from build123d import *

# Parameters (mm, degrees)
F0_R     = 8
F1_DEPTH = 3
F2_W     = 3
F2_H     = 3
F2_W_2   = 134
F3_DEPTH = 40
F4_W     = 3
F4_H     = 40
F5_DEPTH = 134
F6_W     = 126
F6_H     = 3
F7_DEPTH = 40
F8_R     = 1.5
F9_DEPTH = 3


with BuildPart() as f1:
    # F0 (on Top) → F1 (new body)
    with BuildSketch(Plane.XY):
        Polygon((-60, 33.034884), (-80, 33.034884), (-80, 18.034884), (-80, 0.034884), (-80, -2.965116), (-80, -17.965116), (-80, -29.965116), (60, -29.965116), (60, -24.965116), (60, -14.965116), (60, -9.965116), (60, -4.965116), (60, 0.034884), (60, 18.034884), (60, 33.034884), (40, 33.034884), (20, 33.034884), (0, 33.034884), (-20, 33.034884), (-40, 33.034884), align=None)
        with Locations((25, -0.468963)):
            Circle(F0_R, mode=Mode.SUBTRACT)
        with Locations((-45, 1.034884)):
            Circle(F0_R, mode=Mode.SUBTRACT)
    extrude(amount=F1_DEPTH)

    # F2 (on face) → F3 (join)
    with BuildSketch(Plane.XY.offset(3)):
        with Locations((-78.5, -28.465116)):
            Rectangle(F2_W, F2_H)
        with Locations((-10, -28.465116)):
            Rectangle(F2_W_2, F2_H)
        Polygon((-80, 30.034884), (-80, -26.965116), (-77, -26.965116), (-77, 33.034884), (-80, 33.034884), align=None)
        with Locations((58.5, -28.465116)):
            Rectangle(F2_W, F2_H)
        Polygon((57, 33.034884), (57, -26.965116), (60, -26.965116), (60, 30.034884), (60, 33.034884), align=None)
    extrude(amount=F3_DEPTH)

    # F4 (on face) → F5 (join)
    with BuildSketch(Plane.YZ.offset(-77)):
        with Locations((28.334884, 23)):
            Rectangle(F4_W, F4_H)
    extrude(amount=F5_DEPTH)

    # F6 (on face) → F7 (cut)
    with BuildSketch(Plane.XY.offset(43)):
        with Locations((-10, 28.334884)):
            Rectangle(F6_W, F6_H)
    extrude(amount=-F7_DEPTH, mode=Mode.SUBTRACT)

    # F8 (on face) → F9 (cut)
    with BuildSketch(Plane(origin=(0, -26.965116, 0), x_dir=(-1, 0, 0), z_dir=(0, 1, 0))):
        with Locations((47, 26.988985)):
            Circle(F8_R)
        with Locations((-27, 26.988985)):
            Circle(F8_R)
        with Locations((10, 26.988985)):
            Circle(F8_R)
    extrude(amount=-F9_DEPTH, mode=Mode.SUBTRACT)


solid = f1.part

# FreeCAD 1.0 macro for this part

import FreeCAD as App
import Part
import Sketcher

V = App.Vector
Q = App.Units.Quantity


def add_polygon(sketch, points):
    """Adds a closed chain of lines whose ends are joined by coincident constraints."""
    first, n = sketch.GeometryCount, len(points)
    for a, b in zip(points, points[1:] + points[:1]):
        sketch.addGeometry(Part.LineSegment(App.Vector(*a, 0), App.Vector(*b, 0)), False)
    for i in range(n):
        sketch.addConstraint(Sketcher.Constraint("Coincident", first + i, 2, first + (i + 1) % n, 1))

doc = App.newDocument("Part")
body = doc.addObject("PartDesign::Body", "Body")

sketch1 = body.newObject("Sketcher::SketchObject", "Sketch")
sketch1.AttachmentSupport = (doc.getObject("XY_Plane"), [""])
sketch1.MapMode = "FlatFace"
add_polygon(sketch1, [(-80, 33), (-80, -30), (60, -30), (60, 33)])
sketch1.addGeometry(Part.Circle(V(25, 0, 0), V(0, 0, 1), 8), False)
sketch1.addGeometry(Part.Circle(V(-45, 1, 0), V(0, 0, 1), 8), False)
sketch1.addConstraint([
    Sketcher.Constraint("Vertical", 0),
    Sketcher.Constraint("Horizontal", 1),
    Sketcher.Constraint("Vertical", 2),
    Sketcher.Constraint("Horizontal", 3),
    Sketcher.Constraint("Equal", 4, 5),
    Sketcher.Constraint("Diameter", 4, Q("16 mm")),
    Sketcher.Constraint("DistanceX", 1, 1, 1, 2, Q("140 mm")),
    Sketcher.Constraint("DistanceY", 0, 2, 0, 1, Q("63 mm")),
    Sketcher.Constraint("DistanceX", -1, 1, 4, 3, Q("25 mm")),
    Sketcher.Constraint("DistanceX", 5, 3, -1, 1, Q("45 mm")),
    Sketcher.Constraint("DistanceX", 0, 2, -1, 1, Q("80 mm")),
    Sketcher.Constraint("DistanceY", 0, 2, 5, 3, Q("31 mm")),
    Sketcher.Constraint("DistanceY", 4, 3, -1, 1, Q("0.468963 mm")),
    Sketcher.Constraint("DistanceY", -1, 1, 5, 3, Q("1.034884 mm")),
])
pad1 = body.newObject("PartDesign::Pad", "Pad")
pad1.Profile = sketch1
pad1.Length = 3

sketch2 = body.newObject("Sketcher::SketchObject", "Sketch001")
sketch2.AttachmentSupport = (doc.getObject("XY_Plane"), [""])
sketch2.MapMode = "FlatFace"
sketch2.AttachmentOffset = App.Placement(V(0, 0, 3), App.Rotation())
add_polygon(sketch2, [(-80, -30), (60, -30), (60, 33), (57, 33), (57, -27), (-77, -27), (-77, 33), (-80, 33)])
sketch2.addConstraint([
    Sketcher.Constraint("Horizontal", 0),
    Sketcher.Constraint("Vertical", 1),
    Sketcher.Constraint("Horizontal", 2),
    Sketcher.Constraint("Vertical", 3),
    Sketcher.Constraint("Horizontal", 4),
    Sketcher.Constraint("Vertical", 5),
    Sketcher.Constraint("Horizontal", 6),
    Sketcher.Constraint("Vertical", 7),
    Sketcher.Constraint("Horizontal", 2, 2, 5, 2),
    Sketcher.Constraint("Equal", 2, 6),
    Sketcher.Constraint("DistanceX", 0, 1, 0, 2, Q("140 mm")),
    Sketcher.Constraint("DistanceX", 2, 2, 2, 1, Q("3 mm")),
    Sketcher.Constraint("DistanceY", 1, 1, 1, 2, Q("63 mm")),
    Sketcher.Constraint("DistanceY", 3, 2, 3, 1, Q("60 mm")),
    Sketcher.Constraint("DistanceX", -1, 1, 0, 2, Q("60 mm")),
    Sketcher.Constraint("DistanceY", 0, 2, -1, 1, Q("29.965116 mm")),
])
pad2 = body.newObject("PartDesign::Pad", "Pad001")
pad2.Profile = sketch2
pad2.Length = 40

sketch3 = body.newObject("Sketcher::SketchObject", "Sketch002")
sketch3.AttachmentSupport = (doc.getObject("YZ_Plane"), [""])
sketch3.MapMode = "FlatFace"
sketch3.AttachmentOffset = App.Placement(V(0, 0, -77), App.Rotation())
add_polygon(sketch3, [(26.8, 43), (26.8, 3), (29.8, 3), (29.8, 43)])
sketch3.addConstraint([
    Sketcher.Constraint("Vertical", 0),
    Sketcher.Constraint("Horizontal", 1),
    Sketcher.Constraint("Vertical", 2),
    Sketcher.Constraint("Horizontal", 3),
    Sketcher.Constraint("DistanceX", 1, 1, 1, 2, Q("3 mm")),
    Sketcher.Constraint("DistanceY", 0, 2, 0, 1, Q("40 mm")),
    Sketcher.Constraint("DistanceY", -1, 1, 0, 2, Q("3 mm")),
    Sketcher.Constraint("DistanceX", -1, 1, 0, 2, Q("26.834884 mm")),
])
pad3 = body.newObject("PartDesign::Pad", "Pad002")
pad3.Profile = sketch3
pad3.Length = 134

sketch4 = body.newObject("Sketcher::SketchObject", "Sketch003")
sketch4.AttachmentSupport = (doc.getObject("XY_Plane"), [""])
sketch4.MapMode = "FlatFace"
sketch4.AttachmentOffset = App.Placement(V(0, 0, 43), App.Rotation())
add_polygon(sketch4, [(-73, 29.8), (-73, 26.8), (53, 26.8), (53, 29.8)])
sketch4.addConstraint([
    Sketcher.Constraint("Vertical", 0),
    Sketcher.Constraint("Horizontal", 1),
    Sketcher.Constraint("Vertical", 2),
    Sketcher.Constraint("Horizontal", 3),
    Sketcher.Constraint("DistanceX", 1, 1, 1, 2, Q("126 mm")),
    Sketcher.Constraint("DistanceY", 0, 2, 0, 1, Q("3 mm")),
    Sketcher.Constraint("DistanceX", 0, 2, -1, 1, Q("73 mm")),
    Sketcher.Constraint("DistanceY", -1, 1, 0, 2, Q("26.834884 mm")),
])
pocket1 = body.newObject("PartDesign::Pocket", "Pocket")
pocket1.Profile = sketch4
pocket1.Length = 40

sketch5 = body.newObject("Sketcher::SketchObject", "Sketch004")
sketch5.AttachmentSupport = (doc.getObject("XZ_Plane"), [""])
sketch5.MapMode = "FlatFace"
sketch5.AttachmentOffset = App.Placement(V(0, 0, 26.965116), App.Rotation())
sketch5.addGeometry([
    Part.Circle(V(-47, 27, 0), V(0, 0, 1), 1.5),
    Part.Circle(V(27, 27, 0), V(0, 0, 1), 1.5),
    Part.Circle(V(-10, 27, 0), V(0, 0, 1), 1.5),
], False)
sketch5.addConstraint([
    Sketcher.Constraint("Equal", 0, 1),
    Sketcher.Constraint("Equal", 1, 2),
    Sketcher.Constraint("Horizontal", 0, 3, 1, 3),
    Sketcher.Constraint("Horizontal", 1, 3, 2, 3),
    Sketcher.Constraint("Diameter", 0, Q("3 mm")),
    Sketcher.Constraint("DistanceX", 0, 3, -1, 1, Q("47 mm")),
    Sketcher.Constraint("DistanceX", -1, 1, 1, 3, Q("27 mm")),
    Sketcher.Constraint("DistanceX", 2, 3, -1, 1, Q("10 mm")),
    Sketcher.Constraint("DistanceY", -1, 1, 0, 3, Q("26.988985 mm")),
])
pocket2 = body.newObject("PartDesign::Pocket", "Pocket001")
pocket2.Profile = sketch5
pocket2.Length = 3
pocket2.Reversed = True

doc.recompute()
